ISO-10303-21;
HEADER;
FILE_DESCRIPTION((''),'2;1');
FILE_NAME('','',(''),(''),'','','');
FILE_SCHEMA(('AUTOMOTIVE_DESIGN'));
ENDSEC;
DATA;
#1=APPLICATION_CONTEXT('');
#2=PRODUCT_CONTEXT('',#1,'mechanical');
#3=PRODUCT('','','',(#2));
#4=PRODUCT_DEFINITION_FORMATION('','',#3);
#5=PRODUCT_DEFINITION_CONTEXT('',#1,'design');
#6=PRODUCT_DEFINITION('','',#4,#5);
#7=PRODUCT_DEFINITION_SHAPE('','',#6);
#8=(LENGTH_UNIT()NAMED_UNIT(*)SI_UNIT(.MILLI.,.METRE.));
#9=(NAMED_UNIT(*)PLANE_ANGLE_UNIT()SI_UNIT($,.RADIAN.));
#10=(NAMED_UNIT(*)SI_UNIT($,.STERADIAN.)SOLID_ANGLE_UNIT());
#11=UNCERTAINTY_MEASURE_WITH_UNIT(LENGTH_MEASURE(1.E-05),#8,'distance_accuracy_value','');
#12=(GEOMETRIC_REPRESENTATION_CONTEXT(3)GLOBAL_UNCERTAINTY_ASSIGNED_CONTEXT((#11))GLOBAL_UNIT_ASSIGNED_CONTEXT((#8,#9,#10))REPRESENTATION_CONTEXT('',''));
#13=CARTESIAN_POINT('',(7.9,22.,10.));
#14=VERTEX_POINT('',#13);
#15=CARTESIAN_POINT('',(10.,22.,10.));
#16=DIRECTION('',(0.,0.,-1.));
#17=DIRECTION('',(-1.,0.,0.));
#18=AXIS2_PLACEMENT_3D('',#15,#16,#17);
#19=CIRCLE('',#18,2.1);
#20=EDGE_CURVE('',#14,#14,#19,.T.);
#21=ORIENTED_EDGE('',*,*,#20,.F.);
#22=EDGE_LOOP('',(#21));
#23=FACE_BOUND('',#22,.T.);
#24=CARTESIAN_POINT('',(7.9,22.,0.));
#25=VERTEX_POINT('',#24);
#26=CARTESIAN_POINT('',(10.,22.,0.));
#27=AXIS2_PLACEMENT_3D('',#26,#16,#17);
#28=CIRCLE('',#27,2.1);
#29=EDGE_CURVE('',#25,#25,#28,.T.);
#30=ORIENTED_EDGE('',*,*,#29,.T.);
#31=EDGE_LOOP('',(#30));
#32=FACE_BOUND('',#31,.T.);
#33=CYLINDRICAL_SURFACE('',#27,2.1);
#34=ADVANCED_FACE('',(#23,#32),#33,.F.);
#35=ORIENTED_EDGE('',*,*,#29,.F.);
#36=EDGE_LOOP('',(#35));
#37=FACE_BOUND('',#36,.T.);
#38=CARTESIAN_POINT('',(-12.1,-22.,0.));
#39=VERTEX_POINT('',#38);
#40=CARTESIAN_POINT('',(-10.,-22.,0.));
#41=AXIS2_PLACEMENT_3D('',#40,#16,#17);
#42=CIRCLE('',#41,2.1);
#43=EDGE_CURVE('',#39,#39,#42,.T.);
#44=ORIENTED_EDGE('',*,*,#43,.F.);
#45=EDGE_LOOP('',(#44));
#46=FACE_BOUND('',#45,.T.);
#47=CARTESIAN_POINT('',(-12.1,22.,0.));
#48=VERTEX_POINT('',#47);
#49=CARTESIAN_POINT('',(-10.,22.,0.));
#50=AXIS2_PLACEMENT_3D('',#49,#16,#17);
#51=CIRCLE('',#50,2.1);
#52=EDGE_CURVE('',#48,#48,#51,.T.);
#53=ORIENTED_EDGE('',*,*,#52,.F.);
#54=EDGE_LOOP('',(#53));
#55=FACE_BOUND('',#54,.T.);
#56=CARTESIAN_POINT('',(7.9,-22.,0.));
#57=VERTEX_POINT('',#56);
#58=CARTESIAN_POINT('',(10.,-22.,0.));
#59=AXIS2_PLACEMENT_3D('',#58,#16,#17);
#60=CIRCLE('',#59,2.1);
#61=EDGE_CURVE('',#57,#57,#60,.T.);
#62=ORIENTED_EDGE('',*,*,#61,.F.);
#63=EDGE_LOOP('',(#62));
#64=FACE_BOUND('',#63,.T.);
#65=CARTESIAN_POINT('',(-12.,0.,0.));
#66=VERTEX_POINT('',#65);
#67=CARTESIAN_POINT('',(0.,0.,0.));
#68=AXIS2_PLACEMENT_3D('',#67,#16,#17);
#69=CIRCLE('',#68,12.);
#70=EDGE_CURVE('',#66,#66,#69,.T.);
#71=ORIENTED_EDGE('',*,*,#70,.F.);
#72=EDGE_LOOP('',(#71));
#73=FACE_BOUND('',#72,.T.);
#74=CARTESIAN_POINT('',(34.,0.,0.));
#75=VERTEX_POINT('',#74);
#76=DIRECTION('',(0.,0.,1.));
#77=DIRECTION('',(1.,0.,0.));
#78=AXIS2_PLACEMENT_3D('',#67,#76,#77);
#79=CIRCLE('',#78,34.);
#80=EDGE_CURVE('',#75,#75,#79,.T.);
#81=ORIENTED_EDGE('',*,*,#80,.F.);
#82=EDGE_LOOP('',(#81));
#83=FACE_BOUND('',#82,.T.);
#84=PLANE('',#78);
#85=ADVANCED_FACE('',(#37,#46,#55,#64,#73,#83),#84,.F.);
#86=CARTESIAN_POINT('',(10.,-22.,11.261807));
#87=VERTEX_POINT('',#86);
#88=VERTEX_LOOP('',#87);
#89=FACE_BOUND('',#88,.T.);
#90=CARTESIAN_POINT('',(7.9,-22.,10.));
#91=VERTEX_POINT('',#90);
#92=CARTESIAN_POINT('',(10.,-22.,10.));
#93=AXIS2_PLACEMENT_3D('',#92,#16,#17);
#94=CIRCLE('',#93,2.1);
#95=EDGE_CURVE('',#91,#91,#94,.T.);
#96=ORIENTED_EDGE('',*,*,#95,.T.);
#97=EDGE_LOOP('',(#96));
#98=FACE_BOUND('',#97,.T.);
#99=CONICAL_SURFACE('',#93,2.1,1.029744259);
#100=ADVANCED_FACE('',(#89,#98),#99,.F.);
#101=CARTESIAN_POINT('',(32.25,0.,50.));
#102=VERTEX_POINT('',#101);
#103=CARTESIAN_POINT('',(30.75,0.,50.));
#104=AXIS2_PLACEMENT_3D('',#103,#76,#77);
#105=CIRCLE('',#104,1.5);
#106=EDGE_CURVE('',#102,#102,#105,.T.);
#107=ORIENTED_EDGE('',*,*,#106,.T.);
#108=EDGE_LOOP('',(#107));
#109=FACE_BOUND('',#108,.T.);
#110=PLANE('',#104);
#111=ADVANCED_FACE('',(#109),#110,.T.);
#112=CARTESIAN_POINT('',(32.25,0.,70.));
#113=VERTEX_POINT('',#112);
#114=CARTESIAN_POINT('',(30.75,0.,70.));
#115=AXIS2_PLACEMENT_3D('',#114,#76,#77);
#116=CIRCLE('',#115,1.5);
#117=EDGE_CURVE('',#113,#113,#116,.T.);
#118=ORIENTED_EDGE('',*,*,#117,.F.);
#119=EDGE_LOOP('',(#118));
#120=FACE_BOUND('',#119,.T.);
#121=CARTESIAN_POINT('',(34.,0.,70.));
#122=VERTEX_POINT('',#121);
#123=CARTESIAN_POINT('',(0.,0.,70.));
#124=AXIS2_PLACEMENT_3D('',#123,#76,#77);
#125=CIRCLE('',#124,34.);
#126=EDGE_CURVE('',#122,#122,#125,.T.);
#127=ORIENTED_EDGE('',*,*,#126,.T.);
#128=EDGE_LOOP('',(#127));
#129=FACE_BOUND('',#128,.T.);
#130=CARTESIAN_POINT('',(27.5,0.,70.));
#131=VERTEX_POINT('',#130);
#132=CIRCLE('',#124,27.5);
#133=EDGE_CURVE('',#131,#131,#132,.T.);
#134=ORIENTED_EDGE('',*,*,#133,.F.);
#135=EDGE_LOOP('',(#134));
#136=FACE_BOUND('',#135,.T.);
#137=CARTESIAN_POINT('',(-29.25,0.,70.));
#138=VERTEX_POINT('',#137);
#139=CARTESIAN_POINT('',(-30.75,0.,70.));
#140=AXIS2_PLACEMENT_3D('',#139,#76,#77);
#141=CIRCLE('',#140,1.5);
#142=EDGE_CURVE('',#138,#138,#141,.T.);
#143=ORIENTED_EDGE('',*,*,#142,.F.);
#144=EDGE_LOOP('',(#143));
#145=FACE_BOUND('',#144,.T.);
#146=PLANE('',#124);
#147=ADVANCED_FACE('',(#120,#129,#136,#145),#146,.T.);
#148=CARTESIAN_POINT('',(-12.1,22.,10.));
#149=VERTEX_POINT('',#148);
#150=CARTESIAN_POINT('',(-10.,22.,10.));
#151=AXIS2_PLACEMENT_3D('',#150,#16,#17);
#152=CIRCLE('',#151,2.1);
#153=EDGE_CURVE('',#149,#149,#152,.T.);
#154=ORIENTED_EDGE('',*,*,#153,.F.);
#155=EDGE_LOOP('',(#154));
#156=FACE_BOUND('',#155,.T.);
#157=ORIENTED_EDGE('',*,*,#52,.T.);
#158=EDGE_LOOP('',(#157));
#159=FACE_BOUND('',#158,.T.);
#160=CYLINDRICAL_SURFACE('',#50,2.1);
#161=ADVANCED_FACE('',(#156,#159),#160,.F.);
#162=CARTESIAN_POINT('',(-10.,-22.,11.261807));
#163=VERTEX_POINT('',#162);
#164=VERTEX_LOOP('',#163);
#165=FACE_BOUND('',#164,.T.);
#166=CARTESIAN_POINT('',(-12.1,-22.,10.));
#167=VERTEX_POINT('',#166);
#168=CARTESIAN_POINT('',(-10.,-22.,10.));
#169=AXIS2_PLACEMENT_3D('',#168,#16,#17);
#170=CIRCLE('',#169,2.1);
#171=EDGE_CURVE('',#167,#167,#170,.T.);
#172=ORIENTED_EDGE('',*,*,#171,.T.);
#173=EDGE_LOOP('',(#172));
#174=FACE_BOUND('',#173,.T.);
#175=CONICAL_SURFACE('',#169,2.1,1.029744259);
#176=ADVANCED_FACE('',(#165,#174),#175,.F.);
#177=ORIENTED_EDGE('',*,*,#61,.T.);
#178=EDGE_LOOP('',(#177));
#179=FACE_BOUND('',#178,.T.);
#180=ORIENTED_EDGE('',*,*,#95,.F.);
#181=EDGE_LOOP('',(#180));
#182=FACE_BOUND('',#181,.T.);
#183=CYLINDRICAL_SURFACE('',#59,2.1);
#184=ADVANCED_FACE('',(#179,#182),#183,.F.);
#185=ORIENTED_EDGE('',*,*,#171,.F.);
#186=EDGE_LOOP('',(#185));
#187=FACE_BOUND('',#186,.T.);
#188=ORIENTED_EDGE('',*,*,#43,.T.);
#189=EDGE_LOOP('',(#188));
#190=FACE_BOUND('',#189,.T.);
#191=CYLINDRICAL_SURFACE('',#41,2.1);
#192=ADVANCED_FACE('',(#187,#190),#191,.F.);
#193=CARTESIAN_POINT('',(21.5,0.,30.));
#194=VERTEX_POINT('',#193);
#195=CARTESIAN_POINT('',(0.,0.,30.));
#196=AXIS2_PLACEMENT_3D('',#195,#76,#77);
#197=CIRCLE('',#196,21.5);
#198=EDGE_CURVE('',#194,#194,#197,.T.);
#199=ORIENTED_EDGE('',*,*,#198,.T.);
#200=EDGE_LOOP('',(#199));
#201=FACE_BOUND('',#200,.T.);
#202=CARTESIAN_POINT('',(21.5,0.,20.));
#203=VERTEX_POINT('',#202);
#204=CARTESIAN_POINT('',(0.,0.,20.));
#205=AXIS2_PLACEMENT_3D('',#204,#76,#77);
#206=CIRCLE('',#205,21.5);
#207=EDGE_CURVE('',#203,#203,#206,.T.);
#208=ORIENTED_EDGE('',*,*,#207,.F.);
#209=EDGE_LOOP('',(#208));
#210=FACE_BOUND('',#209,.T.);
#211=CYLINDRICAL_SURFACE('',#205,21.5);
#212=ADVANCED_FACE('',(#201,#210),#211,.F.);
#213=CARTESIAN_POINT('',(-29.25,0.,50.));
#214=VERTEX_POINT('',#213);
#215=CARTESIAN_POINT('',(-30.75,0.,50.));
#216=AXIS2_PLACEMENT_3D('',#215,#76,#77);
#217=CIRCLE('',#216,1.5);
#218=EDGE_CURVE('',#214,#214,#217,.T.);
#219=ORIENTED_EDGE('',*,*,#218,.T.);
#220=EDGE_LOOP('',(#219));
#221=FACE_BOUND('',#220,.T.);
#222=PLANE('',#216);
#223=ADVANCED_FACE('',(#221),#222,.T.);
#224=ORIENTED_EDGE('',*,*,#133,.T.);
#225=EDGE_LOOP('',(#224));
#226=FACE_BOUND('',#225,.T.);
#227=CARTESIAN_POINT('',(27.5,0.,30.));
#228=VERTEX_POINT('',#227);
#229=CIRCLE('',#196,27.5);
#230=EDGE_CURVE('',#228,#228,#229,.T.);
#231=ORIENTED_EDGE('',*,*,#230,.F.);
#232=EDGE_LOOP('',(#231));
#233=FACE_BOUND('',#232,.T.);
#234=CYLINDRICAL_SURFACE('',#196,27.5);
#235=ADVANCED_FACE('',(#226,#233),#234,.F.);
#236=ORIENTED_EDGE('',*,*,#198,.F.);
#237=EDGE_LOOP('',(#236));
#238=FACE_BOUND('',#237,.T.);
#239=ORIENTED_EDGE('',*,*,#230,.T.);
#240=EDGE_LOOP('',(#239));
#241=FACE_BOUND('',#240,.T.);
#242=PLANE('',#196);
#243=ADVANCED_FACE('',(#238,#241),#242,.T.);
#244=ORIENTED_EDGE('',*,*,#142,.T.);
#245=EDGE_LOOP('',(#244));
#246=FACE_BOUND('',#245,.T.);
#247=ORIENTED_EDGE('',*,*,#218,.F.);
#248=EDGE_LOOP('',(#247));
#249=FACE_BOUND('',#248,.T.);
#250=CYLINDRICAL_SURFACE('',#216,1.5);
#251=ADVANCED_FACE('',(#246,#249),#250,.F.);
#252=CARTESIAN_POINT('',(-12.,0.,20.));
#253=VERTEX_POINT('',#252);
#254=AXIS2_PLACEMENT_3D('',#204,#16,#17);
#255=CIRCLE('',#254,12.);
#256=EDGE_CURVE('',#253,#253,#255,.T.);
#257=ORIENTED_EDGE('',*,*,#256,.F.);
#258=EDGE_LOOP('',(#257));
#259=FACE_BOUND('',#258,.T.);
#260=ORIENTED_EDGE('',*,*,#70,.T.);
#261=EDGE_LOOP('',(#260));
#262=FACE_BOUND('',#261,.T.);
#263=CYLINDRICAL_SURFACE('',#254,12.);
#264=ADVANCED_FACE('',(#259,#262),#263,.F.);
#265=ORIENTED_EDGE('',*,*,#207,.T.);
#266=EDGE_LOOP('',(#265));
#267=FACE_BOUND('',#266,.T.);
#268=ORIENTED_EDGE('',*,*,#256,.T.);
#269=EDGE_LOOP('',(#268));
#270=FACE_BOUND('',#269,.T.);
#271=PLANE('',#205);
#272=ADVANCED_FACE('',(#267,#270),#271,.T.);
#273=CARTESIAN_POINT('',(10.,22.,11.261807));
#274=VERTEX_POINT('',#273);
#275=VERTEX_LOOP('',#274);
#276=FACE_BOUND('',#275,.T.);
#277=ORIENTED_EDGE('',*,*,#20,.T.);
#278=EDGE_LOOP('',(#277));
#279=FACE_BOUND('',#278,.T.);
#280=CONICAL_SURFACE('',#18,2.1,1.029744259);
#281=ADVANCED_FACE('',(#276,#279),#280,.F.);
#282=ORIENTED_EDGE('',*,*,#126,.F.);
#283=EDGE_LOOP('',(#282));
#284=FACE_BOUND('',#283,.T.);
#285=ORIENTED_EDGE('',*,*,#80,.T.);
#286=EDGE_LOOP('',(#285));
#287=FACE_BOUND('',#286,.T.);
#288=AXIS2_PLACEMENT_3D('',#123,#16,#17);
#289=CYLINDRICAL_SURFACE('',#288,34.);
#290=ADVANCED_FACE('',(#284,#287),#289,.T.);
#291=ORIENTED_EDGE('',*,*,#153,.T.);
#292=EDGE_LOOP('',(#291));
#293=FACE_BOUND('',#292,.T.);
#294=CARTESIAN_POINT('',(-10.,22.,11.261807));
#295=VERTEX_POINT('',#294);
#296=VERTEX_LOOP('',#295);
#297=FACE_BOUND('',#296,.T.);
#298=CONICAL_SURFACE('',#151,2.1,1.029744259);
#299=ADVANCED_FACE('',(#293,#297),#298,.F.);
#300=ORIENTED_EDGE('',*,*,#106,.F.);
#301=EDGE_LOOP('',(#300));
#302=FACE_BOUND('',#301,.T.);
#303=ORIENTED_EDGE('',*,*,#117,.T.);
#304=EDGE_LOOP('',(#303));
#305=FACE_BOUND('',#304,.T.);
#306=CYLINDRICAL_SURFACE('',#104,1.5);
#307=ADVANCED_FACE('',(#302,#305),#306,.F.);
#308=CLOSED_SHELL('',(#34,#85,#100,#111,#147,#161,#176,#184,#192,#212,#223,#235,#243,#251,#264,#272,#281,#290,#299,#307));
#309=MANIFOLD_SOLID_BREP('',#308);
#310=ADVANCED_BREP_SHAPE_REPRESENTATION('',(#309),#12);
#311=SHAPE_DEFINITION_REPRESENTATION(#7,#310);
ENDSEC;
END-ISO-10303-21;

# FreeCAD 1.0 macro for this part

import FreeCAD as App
import Part
import Sketcher
from FreeCAD import Vector
Q = App.Units.Quantity

doc = App.newDocument("Part")
params = doc.addObject("Spreadsheet::Sheet", "Params")
for row, (alias, value) in enumerate([
    ("sketch1_diameter", "68 mm"),
    ("pad1_length", "70 mm"),
    ("sketch2_diameter", "55 mm"),
    ("pocket1_length", "40 mm"),
    ("sketch3_diameter", "43 mm"),
    ("pocket2_length", "10 mm"),
    ("sketch4_diameter", "24 mm"),
    ("pocket3_length", "20 mm"),
    ("sketch5_diameter", "3 mm"),
    ("pocket4_length", "20 mm"),
    ("sketch6_diameter", "4.2 mm"),
    ("hole_diameter", "4.2 mm"),
    ("hole_depth", "10 mm"),
], start=1):
    params.set(f"A{row}", alias)
    params.set(f"B{row}", "=" + value)
    params.setAlias(f"B{row}", alias)

body = doc.addObject("PartDesign::Body", "Body")

sketch1 = body.newObject("Sketcher::SketchObject", "Sketch")
sketch1.AttachmentSupport = (doc.getObject("XY_Plane"), [""])
sketch1.MapMode = "FlatFace"
sketch1.addGeometry(Part.Circle(Vector(0, 0, 0), Vector(0, 0, 1), 34), False)
sketch1.addConstraint([
    Sketcher.Constraint("Coincident", 0, 3, -1, 1),
    Sketcher.Constraint("Diameter", 0, Q("68 mm")),
])
sketch1.setExpression("Constraints[1]", "Params.sketch1_diameter")
pad1 = body.newObject("PartDesign::Pad", "Pad")
pad1.Profile = sketch1
pad1.setExpression("Length", "Params.pad1_length")

sketch2 = body.newObject("Sketcher::SketchObject", "Sketch001")
sketch2.AttachmentSupport = (doc.getObject("XY_Plane"), [""])
sketch2.MapMode = "FlatFace"
sketch2.AttachmentOffset = App.Placement(Vector(0, 0, 70), App.Rotation())
sketch2.addGeometry(Part.Circle(Vector(0, 0, 0), Vector(0, 0, 1), 28), False)
sketch2.addConstraint([
    Sketcher.Constraint("Coincident", 0, 3, -1, 1),
    Sketcher.Constraint("Diameter", 0, Q("55 mm")),
])
sketch2.setExpression("Constraints[1]", "Params.sketch2_diameter")
pocket1 = body.newObject("PartDesign::Pocket", "Pocket")
pocket1.Profile = sketch2
pocket1.setExpression("Length", "Params.pocket1_length")

sketch3 = body.newObject("Sketcher::SketchObject", "Sketch002")
sketch3.AttachmentSupport = (doc.getObject("XY_Plane"), [""])
sketch3.MapMode = "FlatFace"
sketch3.AttachmentOffset = App.Placement(Vector(0, 0, 30), App.Rotation())
sketch3.addGeometry(Part.Circle(Vector(0, 0, 0), Vector(0, 0, 1), 22), False)
sketch3.addConstraint([
    Sketcher.Constraint("Coincident", 0, 3, -1, 1),
    Sketcher.Constraint("Diameter", 0, Q("43 mm")),
])
sketch3.setExpression("Constraints[1]", "Params.sketch3_diameter")
pocket2 = body.newObject("PartDesign::Pocket", "Pocket001")
pocket2.Profile = sketch3
pocket2.setExpression("Length", "Params.pocket2_length")

sketch4 = body.newObject("Sketcher::SketchObject", "Sketch003")
sketch4.AttachmentSupport = (doc.getObject("XY_Plane"), [""])
sketch4.MapMode = "FlatFace"
sketch4.addGeometry(Part.Circle(Vector(0, 0, 0), Vector(0, 0, 1), 12), False)
sketch4.addConstraint([
    Sketcher.Constraint("Coincident", 0, 3, -1, 1),
    Sketcher.Constraint("Diameter", 0, Q("24 mm")),
])
sketch4.setExpression("Constraints[1]", "Params.sketch4_diameter")
pocket3 = body.newObject("PartDesign::Pocket", "Pocket002")
pocket3.Profile = sketch4
pocket3.setExpression("Length", "Params.pocket3_length")
pocket3.Reversed = True

sketch5 = body.newObject("Sketcher::SketchObject", "Sketch004")
sketch5.AttachmentSupport = (doc.getObject("XY_Plane"), [""])
sketch5.MapMode = "FlatFace"
sketch5.AttachmentOffset = App.Placement(Vector(0, 0, 70), App.Rotation())
sketch5.addGeometry([
    Part.Circle(Vector(-30.8, 0, 0), Vector(0, 0, 1), 1.5),
    Part.Circle(Vector(30.8, 0, 0), Vector(0, 0, 1), 1.5),
], False)
sketch5.addConstraint([
    Sketcher.Constraint("Equal", 0, 1),
    Sketcher.Constraint("Symmetric", 0, 3, 1, 3, -1, 1),
    Sketcher.Constraint("PointOnObject", 0, 3, -1),
    Sketcher.Constraint("Diameter", 0, Q("3 mm")),
    Sketcher.Constraint("DistanceX", 0, 3, 1, 3, Q("61.5 mm")),
])
sketch5.setExpression("Constraints[3]", "Params.sketch5_diameter")
pocket4 = body.newObject("PartDesign::Pocket", "Pocket003")
pocket4.Profile = sketch5
pocket4.setExpression("Length", "Params.pocket4_length")

sketch6 = body.newObject("Sketcher::SketchObject", "Sketch005")
sketch6.AttachmentSupport = (doc.getObject("XY_Plane"), [""])
sketch6.MapMode = "FlatFace"
sketch6.addGeometry([
    Part.Circle(Vector(10, 22, 0), Vector(0, 0, 1), 2.1),
    Part.Circle(Vector(-10, 22, 0), Vector(0, 0, 1), 2.1),
    Part.Circle(Vector(-10, -22, 0), Vector(0, 0, 1), 2.1),
    Part.Circle(Vector(10, -22, 0), Vector(0, 0, 1), 2.1),
], False)
sketch6.addConstraint([
    Sketcher.Constraint("Equal", 0, 1),
    Sketcher.Constraint("Equal", 1, 2),
    Sketcher.Constraint("Equal", 2, 3),
    Sketcher.Constraint("Symmetric", 0, 3, 2, 3, -1, 1),
    Sketcher.Constraint("Symmetric", 1, 3, 3, 3, -1, 1),
    Sketcher.Constraint("Symmetric", 0, 3, 1, 3, -2),
    Sketcher.Constraint("Diameter", 0, Q("4.2 mm")),
    Sketcher.Constraint("DistanceX", -1, 1, 0, 3, Q("10 mm")),
    Sketcher.Constraint("DistanceY", -1, 1, 0, 3, Q("22 mm")),
])
sketch6.setExpression("Constraints[6]", "Params.sketch6_diameter")
doc.recompute()
hole = body.newObject("PartDesign::Hole", "Hole")
hole.Profile = sketch6
hole.ThreadType = "None"
hole.setExpression("Diameter", "Params.hole_diameter")
hole.DepthType = "Dimension"
hole.setExpression("Depth", "Params.hole_depth")
hole.DrillPoint = "Angled"
hole.DrillPointAngle = 118
hole.Reversed = True

doc.recompute()
